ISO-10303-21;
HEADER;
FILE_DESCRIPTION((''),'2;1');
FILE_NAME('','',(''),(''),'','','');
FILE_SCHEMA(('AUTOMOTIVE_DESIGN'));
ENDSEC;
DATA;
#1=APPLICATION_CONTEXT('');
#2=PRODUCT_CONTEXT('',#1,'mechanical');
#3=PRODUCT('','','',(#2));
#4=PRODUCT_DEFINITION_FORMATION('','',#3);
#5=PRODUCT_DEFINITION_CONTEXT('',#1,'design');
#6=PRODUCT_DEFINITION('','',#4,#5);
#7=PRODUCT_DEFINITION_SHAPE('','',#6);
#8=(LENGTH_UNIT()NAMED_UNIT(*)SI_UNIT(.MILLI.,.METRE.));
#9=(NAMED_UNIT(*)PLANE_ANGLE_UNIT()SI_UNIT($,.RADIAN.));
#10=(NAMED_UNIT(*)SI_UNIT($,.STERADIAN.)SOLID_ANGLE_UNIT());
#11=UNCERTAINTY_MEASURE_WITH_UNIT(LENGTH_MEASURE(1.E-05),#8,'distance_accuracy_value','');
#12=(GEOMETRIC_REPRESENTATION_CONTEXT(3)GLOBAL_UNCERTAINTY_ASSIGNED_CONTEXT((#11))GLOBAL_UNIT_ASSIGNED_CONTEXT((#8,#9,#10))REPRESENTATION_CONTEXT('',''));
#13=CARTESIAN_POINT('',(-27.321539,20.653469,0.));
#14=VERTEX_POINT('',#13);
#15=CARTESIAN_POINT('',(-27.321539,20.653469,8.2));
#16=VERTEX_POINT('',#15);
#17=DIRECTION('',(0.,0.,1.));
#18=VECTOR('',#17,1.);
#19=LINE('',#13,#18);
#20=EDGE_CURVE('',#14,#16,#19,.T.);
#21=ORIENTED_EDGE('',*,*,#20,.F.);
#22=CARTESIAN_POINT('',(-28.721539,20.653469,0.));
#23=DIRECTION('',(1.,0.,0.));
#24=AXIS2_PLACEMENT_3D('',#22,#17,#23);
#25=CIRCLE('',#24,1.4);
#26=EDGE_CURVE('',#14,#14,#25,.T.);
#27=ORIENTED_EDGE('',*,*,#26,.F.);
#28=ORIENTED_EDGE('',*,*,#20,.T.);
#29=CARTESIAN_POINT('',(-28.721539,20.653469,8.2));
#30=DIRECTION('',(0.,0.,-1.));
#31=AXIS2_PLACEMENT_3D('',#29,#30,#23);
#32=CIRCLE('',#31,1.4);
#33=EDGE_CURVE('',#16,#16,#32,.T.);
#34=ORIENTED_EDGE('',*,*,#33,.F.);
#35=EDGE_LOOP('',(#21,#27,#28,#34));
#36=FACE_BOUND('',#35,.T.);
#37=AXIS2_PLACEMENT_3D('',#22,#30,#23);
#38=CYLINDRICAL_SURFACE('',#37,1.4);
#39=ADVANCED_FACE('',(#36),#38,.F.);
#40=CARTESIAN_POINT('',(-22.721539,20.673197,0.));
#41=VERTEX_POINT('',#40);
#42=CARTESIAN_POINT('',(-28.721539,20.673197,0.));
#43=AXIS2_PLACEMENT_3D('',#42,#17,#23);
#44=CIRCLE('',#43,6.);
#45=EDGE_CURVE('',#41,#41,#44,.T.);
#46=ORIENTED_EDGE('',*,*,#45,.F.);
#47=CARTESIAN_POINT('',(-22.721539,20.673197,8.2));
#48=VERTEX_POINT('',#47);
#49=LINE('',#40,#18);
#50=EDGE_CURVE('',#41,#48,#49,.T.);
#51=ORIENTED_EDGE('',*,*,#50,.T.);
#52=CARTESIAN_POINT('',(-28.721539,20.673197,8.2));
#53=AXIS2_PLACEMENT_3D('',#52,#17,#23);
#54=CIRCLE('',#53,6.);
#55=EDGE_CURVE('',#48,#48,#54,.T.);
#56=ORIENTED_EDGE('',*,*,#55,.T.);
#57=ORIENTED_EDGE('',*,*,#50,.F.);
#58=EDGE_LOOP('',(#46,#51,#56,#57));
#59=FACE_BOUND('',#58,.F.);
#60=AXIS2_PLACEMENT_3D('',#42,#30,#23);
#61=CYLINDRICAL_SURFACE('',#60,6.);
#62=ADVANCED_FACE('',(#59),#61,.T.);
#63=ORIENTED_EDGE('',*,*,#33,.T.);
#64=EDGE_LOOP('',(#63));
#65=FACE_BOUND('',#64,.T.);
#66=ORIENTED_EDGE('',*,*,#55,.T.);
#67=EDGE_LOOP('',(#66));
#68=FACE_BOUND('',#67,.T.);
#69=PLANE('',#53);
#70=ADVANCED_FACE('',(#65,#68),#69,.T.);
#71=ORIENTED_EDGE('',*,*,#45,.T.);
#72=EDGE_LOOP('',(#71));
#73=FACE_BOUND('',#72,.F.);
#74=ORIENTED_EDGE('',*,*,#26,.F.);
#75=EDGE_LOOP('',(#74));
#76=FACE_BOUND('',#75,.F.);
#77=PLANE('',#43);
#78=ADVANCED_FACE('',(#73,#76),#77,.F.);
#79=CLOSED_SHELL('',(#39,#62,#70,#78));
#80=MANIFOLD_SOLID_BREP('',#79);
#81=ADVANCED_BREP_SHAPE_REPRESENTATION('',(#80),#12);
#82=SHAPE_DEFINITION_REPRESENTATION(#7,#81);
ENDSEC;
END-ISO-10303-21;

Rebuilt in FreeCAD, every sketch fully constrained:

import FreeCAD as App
import Part
import Sketcher

V = App.Vector

doc = App.newDocument("Part")
params = doc.addObject("Spreadsheet::Sheet", "Params")
for row, (alias, value) in enumerate([
    ("sketch1_diameter", "12 mm"),
    ("pad1_length", "8.2 mm"),
    ("sketch2_diameter", "2.8 mm"),
    ("pocket1_length", "25 mm"),
], start=1):
    params.set(f"A{row}", alias)
    params.set(f"B{row}", "=" + value)
    params.setAlias(f"B{row}", alias)

body = doc.addObject("PartDesign::Body", "Body")

# Sketch on XY plane
sketch1 = body.newObject("Sketcher::SketchObject", "Sketch")
sketch1.AttachmentSupport = (doc.getObject("XY_Plane"), [""])
sketch1.MapMode = "FlatFace"
sketch1.addGeometry(Part.Circle(V(-28.721539, 20.673197, 0), V(0, 0, 1), 6), False)
sketch1.addConstraint([
    Sketcher.Constraint("Diameter", 0, 12.0),
    Sketcher.Constraint("DistanceX", 0, 3, -1, 1, 28.721539),
    Sketcher.Constraint("DistanceY", -1, 1, 0, 3, 20.673197),
])
sketch1.setExpression("Constraints[0]", "Params.sketch1_diameter")
pad1 = body.newObject("PartDesign::Pad", "Pad")
pad1.Profile = sketch1
pad1.setExpression("Length", "Params.pad1_length")

# Sketch on XY plane
sketch2 = body.newObject("Sketcher::SketchObject", "Sketch001")
sketch2.AttachmentSupport = (doc.getObject("XY_Plane"), [""])
sketch2.MapMode = "FlatFace"
sketch2.addGeometry(Part.Circle(V(-28.721539, 20.653469, 0), V(0, 0, 1), 1.4), False)
sketch2.addConstraint([
    Sketcher.Constraint("Diameter", 0, 2.8),
    Sketcher.Constraint("DistanceX", 0, 3, -1, 1, 28.721539),
    Sketcher.Constraint("DistanceY", -1, 1, 0, 3, 20.653469),
])
sketch2.setExpression("Constraints[0]", "Params.sketch2_diameter")
pocket1 = body.newObject("PartDesign::Pocket", "Pocket")
pocket1.Profile = sketch2
pocket1.setExpression("Length", "Params.pocket1_length")
pocket1.Reversed = True

doc.recompute()
